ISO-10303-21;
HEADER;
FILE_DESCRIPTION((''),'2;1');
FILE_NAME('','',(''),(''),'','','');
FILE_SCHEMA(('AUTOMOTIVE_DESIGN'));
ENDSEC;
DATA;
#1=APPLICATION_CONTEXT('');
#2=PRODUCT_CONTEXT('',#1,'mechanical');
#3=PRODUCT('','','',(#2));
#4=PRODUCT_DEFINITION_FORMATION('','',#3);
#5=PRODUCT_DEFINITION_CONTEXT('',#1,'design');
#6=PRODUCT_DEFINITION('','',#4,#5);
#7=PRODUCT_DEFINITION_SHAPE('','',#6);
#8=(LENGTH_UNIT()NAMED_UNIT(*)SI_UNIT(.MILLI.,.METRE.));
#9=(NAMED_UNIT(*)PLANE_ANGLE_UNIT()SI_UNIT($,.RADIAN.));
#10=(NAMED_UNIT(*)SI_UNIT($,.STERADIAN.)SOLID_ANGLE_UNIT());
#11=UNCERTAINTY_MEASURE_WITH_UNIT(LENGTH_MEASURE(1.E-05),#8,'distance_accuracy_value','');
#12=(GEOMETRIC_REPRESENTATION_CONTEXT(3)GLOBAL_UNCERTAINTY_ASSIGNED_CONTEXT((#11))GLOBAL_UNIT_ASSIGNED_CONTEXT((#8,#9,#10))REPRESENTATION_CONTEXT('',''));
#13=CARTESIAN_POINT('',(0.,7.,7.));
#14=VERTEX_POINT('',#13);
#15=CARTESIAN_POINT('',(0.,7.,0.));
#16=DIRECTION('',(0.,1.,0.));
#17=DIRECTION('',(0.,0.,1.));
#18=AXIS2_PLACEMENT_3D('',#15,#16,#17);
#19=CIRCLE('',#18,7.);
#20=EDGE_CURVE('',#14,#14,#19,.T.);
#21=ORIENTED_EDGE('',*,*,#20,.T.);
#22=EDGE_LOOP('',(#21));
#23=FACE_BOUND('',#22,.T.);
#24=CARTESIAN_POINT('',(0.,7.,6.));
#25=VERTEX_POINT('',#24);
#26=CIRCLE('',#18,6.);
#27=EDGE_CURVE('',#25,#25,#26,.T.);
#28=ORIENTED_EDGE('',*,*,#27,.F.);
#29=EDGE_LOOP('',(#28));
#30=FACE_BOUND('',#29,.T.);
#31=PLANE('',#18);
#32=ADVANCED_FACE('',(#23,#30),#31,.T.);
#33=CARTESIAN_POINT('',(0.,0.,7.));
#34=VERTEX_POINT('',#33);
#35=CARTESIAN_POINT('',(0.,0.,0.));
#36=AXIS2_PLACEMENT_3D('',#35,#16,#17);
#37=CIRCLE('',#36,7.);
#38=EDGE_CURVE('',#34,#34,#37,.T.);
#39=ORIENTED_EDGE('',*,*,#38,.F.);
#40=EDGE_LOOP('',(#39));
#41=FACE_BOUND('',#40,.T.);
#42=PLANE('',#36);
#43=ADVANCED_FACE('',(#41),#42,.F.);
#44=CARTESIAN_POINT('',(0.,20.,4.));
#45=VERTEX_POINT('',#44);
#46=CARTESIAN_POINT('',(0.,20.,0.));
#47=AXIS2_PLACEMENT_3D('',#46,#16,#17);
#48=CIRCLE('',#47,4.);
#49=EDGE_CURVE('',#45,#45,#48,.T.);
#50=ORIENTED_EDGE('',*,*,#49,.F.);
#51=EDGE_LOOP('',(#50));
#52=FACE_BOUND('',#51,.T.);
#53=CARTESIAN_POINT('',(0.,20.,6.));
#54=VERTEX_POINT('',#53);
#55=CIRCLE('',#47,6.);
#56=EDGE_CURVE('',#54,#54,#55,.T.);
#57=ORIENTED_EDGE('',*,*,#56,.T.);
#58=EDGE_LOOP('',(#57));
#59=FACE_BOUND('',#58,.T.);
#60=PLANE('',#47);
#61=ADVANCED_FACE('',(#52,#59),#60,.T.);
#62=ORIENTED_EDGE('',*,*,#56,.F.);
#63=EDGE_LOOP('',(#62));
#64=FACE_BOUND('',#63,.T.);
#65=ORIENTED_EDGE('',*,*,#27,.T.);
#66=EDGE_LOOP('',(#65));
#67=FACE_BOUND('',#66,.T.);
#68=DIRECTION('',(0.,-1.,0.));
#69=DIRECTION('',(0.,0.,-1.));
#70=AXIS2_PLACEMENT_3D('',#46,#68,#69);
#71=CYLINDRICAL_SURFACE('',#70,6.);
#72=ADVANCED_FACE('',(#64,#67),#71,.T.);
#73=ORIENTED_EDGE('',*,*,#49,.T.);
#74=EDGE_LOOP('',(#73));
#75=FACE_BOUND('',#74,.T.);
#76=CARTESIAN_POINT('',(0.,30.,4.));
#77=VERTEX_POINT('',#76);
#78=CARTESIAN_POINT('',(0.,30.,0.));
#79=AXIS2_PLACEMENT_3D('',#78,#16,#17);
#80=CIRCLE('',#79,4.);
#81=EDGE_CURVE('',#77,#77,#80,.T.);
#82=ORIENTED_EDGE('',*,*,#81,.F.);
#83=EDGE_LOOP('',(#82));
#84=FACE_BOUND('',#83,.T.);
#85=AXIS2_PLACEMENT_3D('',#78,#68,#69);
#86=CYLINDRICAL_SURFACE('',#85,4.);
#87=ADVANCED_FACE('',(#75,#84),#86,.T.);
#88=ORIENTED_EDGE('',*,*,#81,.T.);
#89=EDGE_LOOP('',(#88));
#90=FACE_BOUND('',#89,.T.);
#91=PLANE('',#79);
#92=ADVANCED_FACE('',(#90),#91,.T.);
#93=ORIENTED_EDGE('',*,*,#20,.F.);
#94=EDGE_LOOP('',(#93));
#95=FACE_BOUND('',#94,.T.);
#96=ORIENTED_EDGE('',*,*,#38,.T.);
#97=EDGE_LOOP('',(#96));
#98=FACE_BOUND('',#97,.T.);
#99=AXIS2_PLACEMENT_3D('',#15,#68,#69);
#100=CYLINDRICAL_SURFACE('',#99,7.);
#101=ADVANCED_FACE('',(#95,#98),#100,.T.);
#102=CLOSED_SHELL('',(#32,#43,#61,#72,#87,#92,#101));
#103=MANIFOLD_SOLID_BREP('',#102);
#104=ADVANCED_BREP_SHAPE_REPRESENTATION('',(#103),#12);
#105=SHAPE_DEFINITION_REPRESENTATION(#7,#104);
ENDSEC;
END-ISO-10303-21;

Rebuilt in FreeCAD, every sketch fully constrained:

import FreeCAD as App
import Part
import Sketcher

doc = App.newDocument("Part")
body = doc.addObject("PartDesign::Body", "Body")

sketch1 = body.newObject("Sketcher::SketchObject", "Sketch")
sketch1.AttachmentSupport = (doc.getObject("XZ_Plane"), [""])
sketch1.MapMode = "FlatFace"
sketch1.addGeometry(Part.Circle(App.Vector(0, 0, 0), App.Vector(0, 0, 1), 7), False)
sketch1.addConstraint([
    Sketcher.Constraint("Coincident", 0, 3, -1, 1),
    Sketcher.Constraint("Diameter", 0, 14.0),
])
pad1 = body.newObject("PartDesign::Pad", "Pad")
pad1.Profile = sketch1
pad1.Length = 7
pad1.Reversed = True

sketch2 = body.newObject("Sketcher::SketchObject", "Sketch001")
sketch2.AttachmentSupport = (doc.getObject("XZ_Plane"), [""])
sketch2.MapMode = "FlatFace"
sketch2.AttachmentOffset = App.Placement(App.Vector(0, 0, -7), App.Rotation())
sketch2.addGeometry(Part.Circle(App.Vector(0, 0, 0), App.Vector(0, 0, 1), 6), False)
sketch2.addConstraint([
    Sketcher.Constraint("Coincident", 0, 3, -1, 1),
    Sketcher.Constraint("Diameter", 0, 12.0),
])
pad2 = body.newObject("PartDesign::Pad", "Pad001")
pad2.Profile = sketch2
pad2.Length = 13
pad2.Reversed = True

sketch3 = body.newObject("Sketcher::SketchObject", "Sketch002")
sketch3.AttachmentSupport = (doc.getObject("XZ_Plane"), [""])
sketch3.MapMode = "FlatFace"
sketch3.AttachmentOffset = App.Placement(App.Vector(0, 0, -20), App.Rotation())
sketch3.addGeometry(Part.Circle(App.Vector(0, 0, 0), App.Vector(0, 0, 1), 4), False)
sketch3.addConstraint([
    Sketcher.Constraint("Coincident", 0, 3, -1, 1),
    Sketcher.Constraint("Diameter", 0, 8.0),
])
pad3 = body.newObject("PartDesign::Pad", "Pad002")
pad3.Profile = sketch3
pad3.Length = 10
pad3.Reversed = True

doc.recompute()
